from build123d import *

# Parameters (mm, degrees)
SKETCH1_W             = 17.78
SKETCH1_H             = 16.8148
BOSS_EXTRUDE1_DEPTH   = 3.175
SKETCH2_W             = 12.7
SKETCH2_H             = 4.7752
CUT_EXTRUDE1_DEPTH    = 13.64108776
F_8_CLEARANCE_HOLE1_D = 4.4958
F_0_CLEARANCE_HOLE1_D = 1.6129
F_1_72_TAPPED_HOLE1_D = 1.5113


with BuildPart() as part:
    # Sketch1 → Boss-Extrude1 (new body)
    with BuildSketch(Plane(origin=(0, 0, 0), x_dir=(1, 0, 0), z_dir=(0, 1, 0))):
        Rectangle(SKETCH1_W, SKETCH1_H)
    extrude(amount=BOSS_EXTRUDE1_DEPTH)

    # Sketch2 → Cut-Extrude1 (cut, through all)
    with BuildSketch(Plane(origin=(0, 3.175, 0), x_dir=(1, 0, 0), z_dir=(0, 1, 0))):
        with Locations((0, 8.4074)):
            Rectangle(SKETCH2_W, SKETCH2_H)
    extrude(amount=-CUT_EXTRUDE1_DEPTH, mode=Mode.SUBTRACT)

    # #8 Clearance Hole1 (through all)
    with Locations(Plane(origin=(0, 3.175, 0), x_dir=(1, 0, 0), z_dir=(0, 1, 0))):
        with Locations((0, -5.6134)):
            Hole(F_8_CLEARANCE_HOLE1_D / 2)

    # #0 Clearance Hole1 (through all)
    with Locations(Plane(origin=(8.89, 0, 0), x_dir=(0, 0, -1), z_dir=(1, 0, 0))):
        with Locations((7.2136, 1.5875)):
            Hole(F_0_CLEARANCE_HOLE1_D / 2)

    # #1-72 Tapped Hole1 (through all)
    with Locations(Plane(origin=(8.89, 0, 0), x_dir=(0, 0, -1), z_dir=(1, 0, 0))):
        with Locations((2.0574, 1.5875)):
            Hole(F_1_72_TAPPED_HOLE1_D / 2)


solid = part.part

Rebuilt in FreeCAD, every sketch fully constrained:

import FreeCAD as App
import Part
import Sketcher

V = App.Vector
Q = App.Units.Quantity


def add_polygon(sketch, points):
    """Adds a closed chain of lines whose ends are joined by coincident constraints."""
    first, n = sketch.GeometryCount, len(points)
    for a, b in zip(points, points[1:] + points[:1]):
        sketch.addGeometry(Part.LineSegment(App.Vector(*a, 0), App.Vector(*b, 0)), False)
    for i in range(n):
        sketch.addConstraint(Sketcher.Constraint("Coincident", first + i, 2, first + (i + 1) % n, 1))

doc = App.newDocument("Part")
body = doc.addObject("PartDesign::Body", "Body")

# Sketch on XZ plane
sketch1 = doc.addObject("Sketcher::SketchObject", "Sketch")
body.addObject(sketch1)
sketch1.AttachmentSupport = (doc.XZ_Plane, [""])
sketch1.MapMode = "FlatFace"
add_polygon(sketch1, [(-9, -8), (-9, 8), (9, 8), (9, -8)])  # lines 0-3
sketch1.addConstraint([
    Sketcher.Constraint("Vertical", 0),
    Sketcher.Constraint("Horizontal", 1),
    Sketcher.Constraint("Vertical", 2),
    Sketcher.Constraint("Horizontal", 3),
    Sketcher.Constraint("Symmetric", 0, 2, 2, 2, -1, 1),
    Sketcher.Constraint("DistanceX", 1, 1, 1, 2, Q("0.7 in")),
    Sketcher.Constraint("DistanceY", 0, 1, 0, 2, Q("0.662 in")),
])
pad1 = doc.addObject("PartDesign::Pad", "Pad")
body.addObject(pad1)
pad1.Profile = sketch1
pad1.Length = Q("0.125 in")
pad1.Reversed = True

# Sketch on XZ plane
sketch2 = doc.addObject("Sketcher::SketchObject", "Sketch001")
body.addObject(sketch2)
sketch2.AttachmentSupport = (doc.XZ_Plane, [""])
sketch2.MapMode = "FlatFace"
sketch2.AttachmentOffset = App.Placement(V(0, 0, -0.125 * 25.4), App.Rotation())
add_polygon(sketch2, [(-6.3, -10.8), (-6.3, -6), (6.3, -6), (6.3, -10.8)])  # lines 0-3
sketch2.addConstraint([
    Sketcher.Constraint("Vertical", 0),
    Sketcher.Constraint("Horizontal", 1),
    Sketcher.Constraint("Vertical", 2),
    Sketcher.Constraint("Horizontal", 3),
    Sketcher.Constraint("DistanceX", 1, 1, 1, 2, Q("0.5 in")),
    Sketcher.Constraint("DistanceY", 0, 1, 0, 2, Q("0.188 in")),
    Sketcher.Constraint("DistanceX", 0, 2, -1, 1, Q("0.25 in")),
    Sketcher.Constraint("DistanceY", 0, 2, -1, 1, Q("0.237 in")),
])
pocket1 = doc.addObject("PartDesign::Pocket", "Pocket")
body.addObject(pocket1)
pocket1.Profile = sketch2
pocket1.Type = "ThroughAll"
pocket1.Reversed = True

# Sketch on XZ plane
sketch3 = doc.addObject("Sketcher::SketchObject", "Sketch002")
body.addObject(sketch3)
sketch3.AttachmentSupport = (doc.XZ_Plane, [""])
sketch3.MapMode = "FlatFace"
sketch3.AttachmentOffset = App.Placement(V(0, 0, -0.125 * 25.4), App.Rotation())
sketch3.addGeometry(Part.Circle(V(0, 5.6, 0), V(0, 0, 1), 2.2), False)
sketch3.addConstraint([
    Sketcher.Constraint("PointOnObject", 0, 3, -2),
    Sketcher.Constraint("Diameter", 0, Q("0.177 in")),
    Sketcher.Constraint("DistanceY", -1, 1, 0, 3, Q("0.221 in")),
])
doc.recompute()
hole = doc.addObject("PartDesign::Hole", "Hole")
body.addObject(hole)
hole.Profile = sketch3
hole.ThreadType = "None"
hole.Diameter = Q("0.177 in")
hole.DepthType = "ThroughAll"
hole.Reversed = True

# Sketch on YZ plane
sketch4 = doc.addObject("Sketcher::SketchObject", "Sketch003")
body.addObject(sketch4)
sketch4.AttachmentSupport = (doc.YZ_Plane, [""])
sketch4.MapMode = "FlatFace"
sketch4.AttachmentOffset = App.Placement(V(0, 0, 0.35 * 25.4), App.Rotation())
sketch4.addGeometry(Part.Circle(V(1.6, -7.2, 0), V(0, 0, 1), 0.8), False)
sketch4.addConstraint([
    Sketcher.Constraint("Diameter", 0, Q("0.0635 in")),
    Sketcher.Constraint("DistanceX", -1, 1, 0, 3, Q("0.0625 in")),
    Sketcher.Constraint("DistanceY", 0, 3, -1, 1, Q("0.284 in")),
])
doc.recompute()
hole2 = doc.addObject("PartDesign::Hole", "Hole001")
body.addObject(hole2)
hole2.Profile = sketch4
hole2.ThreadType = "None"
hole2.Diameter = Q("0.0635 in")
hole2.DepthType = "ThroughAll"

# Sketch on YZ plane
sketch5 = doc.addObject("Sketcher::SketchObject", "Sketch004")
body.addObject(sketch5)
sketch5.AttachmentSupport = (doc.YZ_Plane, [""])
sketch5.MapMode = "FlatFace"
sketch5.AttachmentOffset = App.Placement(V(0, 0, 0.35 * 25.4), App.Rotation())
sketch5.addGeometry(Part.Circle(V(1.6, -2.1, 0), V(0, 0, 1), 0.8), False)
sketch5.addConstraint([
    Sketcher.Constraint("Diameter", 0, Q("0.0595 in")),
    Sketcher.Constraint("DistanceX", -1, 1, 0, 3, Q("0.0625 in")),
    Sketcher.Constraint("DistanceY", 0, 3, -1, 1, Q("0.081 in")),
])
doc.recompute()
hole3 = doc.addObject("PartDesign::Hole", "Hole002")
body.addObject(hole3)
hole3.Profile = sketch5
hole3.ThreadType = "None"
hole3.Diameter = Q("0.0595 in")
hole3.DepthType = "ThroughAll"

doc.recompute()
